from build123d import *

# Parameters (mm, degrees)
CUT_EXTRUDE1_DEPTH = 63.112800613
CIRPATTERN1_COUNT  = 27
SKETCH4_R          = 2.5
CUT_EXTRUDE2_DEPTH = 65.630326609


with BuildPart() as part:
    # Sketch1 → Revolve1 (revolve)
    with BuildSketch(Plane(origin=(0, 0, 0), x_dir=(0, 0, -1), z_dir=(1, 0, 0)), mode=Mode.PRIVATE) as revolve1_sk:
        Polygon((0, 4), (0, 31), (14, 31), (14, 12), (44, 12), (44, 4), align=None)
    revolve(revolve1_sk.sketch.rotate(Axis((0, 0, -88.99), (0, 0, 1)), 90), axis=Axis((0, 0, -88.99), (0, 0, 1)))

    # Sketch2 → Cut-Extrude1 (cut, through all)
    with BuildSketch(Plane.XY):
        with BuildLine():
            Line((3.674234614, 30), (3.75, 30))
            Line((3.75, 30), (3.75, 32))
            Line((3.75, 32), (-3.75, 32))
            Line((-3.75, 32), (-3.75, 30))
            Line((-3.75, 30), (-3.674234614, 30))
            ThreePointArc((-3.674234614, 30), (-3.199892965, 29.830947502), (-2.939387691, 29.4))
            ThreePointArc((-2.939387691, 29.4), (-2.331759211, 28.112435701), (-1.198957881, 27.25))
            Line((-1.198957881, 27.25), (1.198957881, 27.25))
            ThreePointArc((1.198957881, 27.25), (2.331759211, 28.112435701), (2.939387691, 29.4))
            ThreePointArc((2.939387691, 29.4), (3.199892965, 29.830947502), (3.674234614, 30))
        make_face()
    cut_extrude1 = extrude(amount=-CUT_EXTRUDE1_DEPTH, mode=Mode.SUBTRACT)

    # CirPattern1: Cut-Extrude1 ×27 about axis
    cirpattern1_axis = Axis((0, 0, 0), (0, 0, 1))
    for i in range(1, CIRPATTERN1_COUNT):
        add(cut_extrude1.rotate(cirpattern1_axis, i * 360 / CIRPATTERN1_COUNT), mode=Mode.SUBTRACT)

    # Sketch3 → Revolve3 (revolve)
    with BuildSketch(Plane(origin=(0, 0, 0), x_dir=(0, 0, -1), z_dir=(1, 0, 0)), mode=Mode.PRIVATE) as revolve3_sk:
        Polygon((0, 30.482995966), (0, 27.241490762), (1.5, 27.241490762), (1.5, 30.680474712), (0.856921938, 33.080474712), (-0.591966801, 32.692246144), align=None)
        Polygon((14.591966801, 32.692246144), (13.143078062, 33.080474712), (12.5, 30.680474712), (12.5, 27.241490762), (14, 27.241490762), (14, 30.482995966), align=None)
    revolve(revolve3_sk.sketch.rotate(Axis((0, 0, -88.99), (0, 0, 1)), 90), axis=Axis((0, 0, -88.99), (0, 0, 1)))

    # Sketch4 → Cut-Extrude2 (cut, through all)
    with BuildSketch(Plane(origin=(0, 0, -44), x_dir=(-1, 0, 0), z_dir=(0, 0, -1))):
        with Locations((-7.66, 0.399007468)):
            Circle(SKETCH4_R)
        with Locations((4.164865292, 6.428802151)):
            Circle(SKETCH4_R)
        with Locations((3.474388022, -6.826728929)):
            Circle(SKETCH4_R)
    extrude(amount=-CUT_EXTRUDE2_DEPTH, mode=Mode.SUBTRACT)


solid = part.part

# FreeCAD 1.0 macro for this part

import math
import FreeCAD as App
import Part
import Sketcher

V = App.Vector
Q = App.Units.Quantity

doc = App.newDocument("Part")
body = doc.addObject("PartDesign::Body", "Body")

sketch1 = doc.addObject("Sketcher::SketchObject", "Sketch")
body.addObject(sketch1)
sketch1.AttachmentSupport = (doc.YZ_Plane, [""])
sketch1.MapMode = "FlatFace"
sketch1.addGeometry([
    Part.LineSegment(V(31, 0, 0), V(4, 0, 0)),
    Part.LineSegment(V(4, 0, 0), V(4, -44, 0)),
    Part.LineSegment(V(4, -44, 0), V(12, -44, 0)),
    Part.LineSegment(V(12, -44, 0), V(12, -14, 0)),
    Part.LineSegment(V(12, -14, 0), V(31, -14, 0)),
    Part.LineSegment(V(31, -14, 0), V(31, 0, 0)),
], False)
sketch1.addConstraint([
    Sketcher.Constraint("Coincident", 0, 2, 1, 1),
    Sketcher.Constraint("Coincident", 1, 2, 2, 1),
    Sketcher.Constraint("Coincident", 2, 2, 3, 1),
    Sketcher.Constraint("Coincident", 3, 2, 4, 1),
    Sketcher.Constraint("Coincident", 4, 2, 5, 1),
    Sketcher.Constraint("Coincident", 5, 2, 0, 1),
    Sketcher.Constraint("Horizontal", 0),
    Sketcher.Constraint("Vertical", 1),
    Sketcher.Constraint("Horizontal", 2),
    Sketcher.Constraint("Vertical", 3),
    Sketcher.Constraint("Horizontal", 4),
    Sketcher.Constraint("Vertical", 5),
    Sketcher.Constraint("PointOnObject", 0, 2, -1),
    Sketcher.Constraint("DistanceX", 0, 2, 0, 1, 27.0),
    Sketcher.Constraint("DistanceX", 2, 1, 2, 2, 8.0),
    Sketcher.Constraint("DistanceY", 1, 2, 1, 1, 44.0),
    Sketcher.Constraint("DistanceY", 3, 1, 3, 2, 30.0),
    Sketcher.Constraint("DistanceX", -1, 1, 0, 2, 4.0),
])
revolution = doc.addObject("PartDesign::Revolution", "Revolution")
body.addObject(revolution)
revolution.Profile = sketch1
revolution.ReferenceAxis = (sketch1, ["V_Axis"])
revolution.Angle = 360

sketch2 = doc.addObject("Sketcher::SketchObject", "Sketch001")
body.addObject(sketch2)
sketch2.AttachmentSupport = (doc.XY_Plane, [""])
sketch2.MapMode = "FlatFace"
sketch2.addGeometry([
    Part.LineSegment(V(3.67, 30, 0), V(3.75, 30, 0)),
    Part.LineSegment(V(3.75, 30, 0), V(3.75, 32, 0)),
    Part.LineSegment(V(3.75, 32, 0), V(-3.75, 32, 0)),
    Part.LineSegment(V(-3.75, 32, 0), V(-3.75, 30, 0)),
    Part.LineSegment(V(-3.75, 30, 0), V(-3.67, 30, 0)),
    Part.ArcOfCircle(Part.Circle(V(-3.67, 29.25, 0), V(0, 0, 1), 0.75), math.radians(12), math.radians(90)),
    Part.ArcOfCircle(Part.Circle(V(0, 30, 0), V(0, 0, 1), 3), math.radians(-168), math.radians(-114)),
    Part.LineSegment(V(-1.2, 27.25, 0), V(1.2, 27.25, 0)),
    Part.ArcOfCircle(Part.Circle(V(0, 30, 0), V(0, 0, 1), 3), math.radians(-66), math.radians(-12)),
    Part.ArcOfCircle(Part.Circle(V(3.67, 29.25, 0), V(0, 0, 1), 0.75), math.radians(90), math.radians(168)),
], False)
sketch2.addConstraint([
    Sketcher.Constraint("Coincident", 0, 2, 1, 1),
    Sketcher.Constraint("Coincident", 1, 2, 2, 1),
    Sketcher.Constraint("Coincident", 2, 2, 3, 1),
    Sketcher.Constraint("Coincident", 3, 2, 4, 1),
    Sketcher.Constraint("Tangent", 4, 2, 5, 2),
    Sketcher.Constraint("Tangent", 5, 1, 6, 1),
    Sketcher.Constraint("Coincident", 6, 2, 7, 1),
    Sketcher.Constraint("Coincident", 7, 2, 8, 1),
    Sketcher.Constraint("Tangent", 8, 2, 9, 2),
    Sketcher.Constraint("Tangent", 9, 1, 0, 1),
    Sketcher.Constraint("Horizontal", 0),
    Sketcher.Constraint("Vertical", 1),
    Sketcher.Constraint("Horizontal", 2),
    Sketcher.Constraint("Vertical", 3),
    Sketcher.Constraint("Horizontal", 4),
    Sketcher.Constraint("Horizontal", 7),
    Sketcher.Constraint("Coincident", 8, 3, 6, 3),
    Sketcher.Constraint("Equal", 6, 8),
    Sketcher.Constraint("Equal", 5, 9),
    Sketcher.Constraint("Symmetric", 5, 3, 9, 3, -2),
    Sketcher.Constraint("Horizontal", 8, 3, 0, 2),
    Sketcher.Constraint("Equal", 0, 4),
    Sketcher.Constraint("Radius", 6, 3.0),
    Sketcher.Constraint("DistanceY", 1, 1, 1, 2, 2.0),
    Sketcher.Constraint("Radius", 5, 0.75),
    Sketcher.Constraint("DistanceX", 2, 2, 2, 1, 7.5),
    Sketcher.Constraint("DistanceY", -1, 1, 6, 3, 30.0),
    Sketcher.Constraint("DistanceY", 6, 2, 5, 3, 2.0),
])
pocket1 = doc.addObject("PartDesign::Pocket", "Pocket")
body.addObject(pocket1)
pocket1.Profile = sketch2
pocket1.Type = "ThroughAll"
doc.recompute()

polarpattern = doc.addObject("PartDesign::PolarPattern", "PolarPattern")
body.addObject(polarpattern)
polarpattern.Originals = [pocket1]
polarpattern.Axis = (doc.Z_Axis, [""])
polarpattern.Angle = 360
polarpattern.Occurrences = 27
body.Tip = polarpattern

sketch3 = doc.addObject("Sketcher::SketchObject", "Sketch002")
body.addObject(sketch3)
sketch3.AttachmentSupport = (doc.YZ_Plane, [""])
sketch3.MapMode = "FlatFace"
sketch3.addGeometry([
    Part.LineSegment(V(30.5, 0, 0), V(27.2, 0, 0)),
    Part.LineSegment(V(27.2, 0, 0), V(27.2, -1.5, 0)),
    Part.LineSegment(V(27.2, -1.5, 0), V(30.7, -1.5, 0)),
    Part.LineSegment(V(30.7, -1.5, 0), V(33.1, -0.9, 0)),
    Part.LineSegment(V(33.1, -0.9, 0), V(32.7, 0.6, 0)),
    Part.LineSegment(V(32.7, 0.6, 0), V(30.5, 0, 0)),
    Part.LineSegment(V(32.7, -14.6, 0), V(33.1, -13.1, 0)),
    Part.LineSegment(V(33.1, -13.1, 0), V(30.7, -12.5, 0)),
    Part.LineSegment(V(30.7, -12.5, 0), V(27.2, -12.5, 0)),
    Part.LineSegment(V(27.2, -12.5, 0), V(27.2, -14, 0)),
    Part.LineSegment(V(27.2, -14, 0), V(30.5, -14, 0)),
    Part.LineSegment(V(30.5, -14, 0), V(32.7, -14.6, 0)),
], False)
sketch3.addConstraint([
    Sketcher.Constraint("Coincident", 0, 2, 1, 1),
    Sketcher.Constraint("Coincident", 1, 2, 2, 1),
    Sketcher.Constraint("Coincident", 2, 2, 3, 1),
    Sketcher.Constraint("Coincident", 3, 2, 4, 1),
    Sketcher.Constraint("Coincident", 4, 2, 5, 1),
    Sketcher.Constraint("Coincident", 5, 2, 0, 1),
    Sketcher.Constraint("Coincident", 6, 2, 7, 1),
    Sketcher.Constraint("Coincident", 7, 2, 8, 1),
    Sketcher.Constraint("Coincident", 8, 2, 9, 1),
    Sketcher.Constraint("Coincident", 9, 2, 10, 1),
    Sketcher.Constraint("Coincident", 10, 2, 11, 1),
    Sketcher.Constraint("Coincident", 11, 2, 6, 1),
    Sketcher.Constraint("Horizontal", 0),
    Sketcher.Constraint("Vertical", 1),
    Sketcher.Constraint("Horizontal", 2),
    Sketcher.Constraint("Horizontal", 8),
    Sketcher.Constraint("Vertical", 9),
    Sketcher.Constraint("Horizontal", 10),
    Sketcher.Constraint("PointOnObject", 0, 2, -1),
    Sketcher.Constraint("Perpendicular", 3, 4),
    Sketcher.Constraint("Perpendicular", 4, 5),
    Sketcher.Constraint("Perpendicular", 6, 7),
    Sketcher.Constraint("Parallel", 7, 11),
    Sketcher.Constraint("Vertical", 3, 2, 6, 2),
    Sketcher.Constraint("Vertical", 2, 2, 7, 2),
    Sketcher.Constraint("Vertical", 1, 2, 8, 2),
    Sketcher.Constraint("Vertical", 5, 2, 10, 2),
    Sketcher.Constraint("Vertical", 4, 2, 11, 2),
    Sketcher.Constraint("Equal", 1, 9),
    Sketcher.Constraint("Angle", 3, Q("15 deg")),
    Sketcher.Constraint("DistanceY", 1, 2, 1, 1, 1.5),
    Sketcher.Constraint("DistanceY", 9, 2, -1, 1, 14.0),
    Sketcher.Constraint("Distance", 4, 1.5),
    Sketcher.Constraint("DistanceX", 2, 2, 3, 2, 2.4),
    Sketcher.Constraint("DistanceX", 0, 2, 0, 1, 3.241505),
    Sketcher.Constraint("DistanceX", -1, 1, 0, 2, 27.241491),
])
revolution2 = doc.addObject("PartDesign::Revolution", "Revolution001")
body.addObject(revolution2)
revolution2.Profile = sketch3
revolution2.ReferenceAxis = (sketch3, ["V_Axis"])
revolution2.Angle = 360

sketch4 = doc.addObject("Sketcher::SketchObject", "Sketch003")
body.addObject(sketch4)
sketch4.AttachmentSupport = (doc.XY_Plane, [""])
sketch4.MapMode = "FlatFace"
sketch4.AttachmentOffset = App.Placement(V(0, 0, -44), App.Rotation())
sketch4.addGeometry([
    Part.Circle(V(7.7, 0.4, 0), V(0, 0, 1), 2.5),
    Part.Circle(V(-4.2, 6.4, 0), V(0, 0, 1), 2.5),
    Part.Circle(V(-3.5, -6.8, 0), V(0, 0, 1), 2.5),
], False)
sketch4.addConstraint([
    Sketcher.Constraint("Equal", 0, 1),
    Sketcher.Constraint("Equal", 1, 2),
    Sketcher.Constraint("Diameter", 0, 5.0),
    Sketcher.Constraint("DistanceX", -1, 1, 0, 3, 7.66),
    Sketcher.Constraint("DistanceX", 2, 3, -1, 1, 3.474388),
    Sketcher.Constraint("DistanceY", 2, 3, -1, 1, 6.826729),
    Sketcher.Constraint("DistanceY", 2, 3, 1, 3, 13.255531),
    Sketcher.Constraint("DistanceY", -1, 1, 0, 3, 0.399007),
    Sketcher.Constraint("DistanceX", 1, 3, -1, 1, 4.164865),
])
pocket2 = doc.addObject("PartDesign::Pocket", "Pocket001")
body.addObject(pocket2)
pocket2.Profile = sketch4
pocket2.Type = "ThroughAll"
pocket2.Reversed = True

doc.recompute()
